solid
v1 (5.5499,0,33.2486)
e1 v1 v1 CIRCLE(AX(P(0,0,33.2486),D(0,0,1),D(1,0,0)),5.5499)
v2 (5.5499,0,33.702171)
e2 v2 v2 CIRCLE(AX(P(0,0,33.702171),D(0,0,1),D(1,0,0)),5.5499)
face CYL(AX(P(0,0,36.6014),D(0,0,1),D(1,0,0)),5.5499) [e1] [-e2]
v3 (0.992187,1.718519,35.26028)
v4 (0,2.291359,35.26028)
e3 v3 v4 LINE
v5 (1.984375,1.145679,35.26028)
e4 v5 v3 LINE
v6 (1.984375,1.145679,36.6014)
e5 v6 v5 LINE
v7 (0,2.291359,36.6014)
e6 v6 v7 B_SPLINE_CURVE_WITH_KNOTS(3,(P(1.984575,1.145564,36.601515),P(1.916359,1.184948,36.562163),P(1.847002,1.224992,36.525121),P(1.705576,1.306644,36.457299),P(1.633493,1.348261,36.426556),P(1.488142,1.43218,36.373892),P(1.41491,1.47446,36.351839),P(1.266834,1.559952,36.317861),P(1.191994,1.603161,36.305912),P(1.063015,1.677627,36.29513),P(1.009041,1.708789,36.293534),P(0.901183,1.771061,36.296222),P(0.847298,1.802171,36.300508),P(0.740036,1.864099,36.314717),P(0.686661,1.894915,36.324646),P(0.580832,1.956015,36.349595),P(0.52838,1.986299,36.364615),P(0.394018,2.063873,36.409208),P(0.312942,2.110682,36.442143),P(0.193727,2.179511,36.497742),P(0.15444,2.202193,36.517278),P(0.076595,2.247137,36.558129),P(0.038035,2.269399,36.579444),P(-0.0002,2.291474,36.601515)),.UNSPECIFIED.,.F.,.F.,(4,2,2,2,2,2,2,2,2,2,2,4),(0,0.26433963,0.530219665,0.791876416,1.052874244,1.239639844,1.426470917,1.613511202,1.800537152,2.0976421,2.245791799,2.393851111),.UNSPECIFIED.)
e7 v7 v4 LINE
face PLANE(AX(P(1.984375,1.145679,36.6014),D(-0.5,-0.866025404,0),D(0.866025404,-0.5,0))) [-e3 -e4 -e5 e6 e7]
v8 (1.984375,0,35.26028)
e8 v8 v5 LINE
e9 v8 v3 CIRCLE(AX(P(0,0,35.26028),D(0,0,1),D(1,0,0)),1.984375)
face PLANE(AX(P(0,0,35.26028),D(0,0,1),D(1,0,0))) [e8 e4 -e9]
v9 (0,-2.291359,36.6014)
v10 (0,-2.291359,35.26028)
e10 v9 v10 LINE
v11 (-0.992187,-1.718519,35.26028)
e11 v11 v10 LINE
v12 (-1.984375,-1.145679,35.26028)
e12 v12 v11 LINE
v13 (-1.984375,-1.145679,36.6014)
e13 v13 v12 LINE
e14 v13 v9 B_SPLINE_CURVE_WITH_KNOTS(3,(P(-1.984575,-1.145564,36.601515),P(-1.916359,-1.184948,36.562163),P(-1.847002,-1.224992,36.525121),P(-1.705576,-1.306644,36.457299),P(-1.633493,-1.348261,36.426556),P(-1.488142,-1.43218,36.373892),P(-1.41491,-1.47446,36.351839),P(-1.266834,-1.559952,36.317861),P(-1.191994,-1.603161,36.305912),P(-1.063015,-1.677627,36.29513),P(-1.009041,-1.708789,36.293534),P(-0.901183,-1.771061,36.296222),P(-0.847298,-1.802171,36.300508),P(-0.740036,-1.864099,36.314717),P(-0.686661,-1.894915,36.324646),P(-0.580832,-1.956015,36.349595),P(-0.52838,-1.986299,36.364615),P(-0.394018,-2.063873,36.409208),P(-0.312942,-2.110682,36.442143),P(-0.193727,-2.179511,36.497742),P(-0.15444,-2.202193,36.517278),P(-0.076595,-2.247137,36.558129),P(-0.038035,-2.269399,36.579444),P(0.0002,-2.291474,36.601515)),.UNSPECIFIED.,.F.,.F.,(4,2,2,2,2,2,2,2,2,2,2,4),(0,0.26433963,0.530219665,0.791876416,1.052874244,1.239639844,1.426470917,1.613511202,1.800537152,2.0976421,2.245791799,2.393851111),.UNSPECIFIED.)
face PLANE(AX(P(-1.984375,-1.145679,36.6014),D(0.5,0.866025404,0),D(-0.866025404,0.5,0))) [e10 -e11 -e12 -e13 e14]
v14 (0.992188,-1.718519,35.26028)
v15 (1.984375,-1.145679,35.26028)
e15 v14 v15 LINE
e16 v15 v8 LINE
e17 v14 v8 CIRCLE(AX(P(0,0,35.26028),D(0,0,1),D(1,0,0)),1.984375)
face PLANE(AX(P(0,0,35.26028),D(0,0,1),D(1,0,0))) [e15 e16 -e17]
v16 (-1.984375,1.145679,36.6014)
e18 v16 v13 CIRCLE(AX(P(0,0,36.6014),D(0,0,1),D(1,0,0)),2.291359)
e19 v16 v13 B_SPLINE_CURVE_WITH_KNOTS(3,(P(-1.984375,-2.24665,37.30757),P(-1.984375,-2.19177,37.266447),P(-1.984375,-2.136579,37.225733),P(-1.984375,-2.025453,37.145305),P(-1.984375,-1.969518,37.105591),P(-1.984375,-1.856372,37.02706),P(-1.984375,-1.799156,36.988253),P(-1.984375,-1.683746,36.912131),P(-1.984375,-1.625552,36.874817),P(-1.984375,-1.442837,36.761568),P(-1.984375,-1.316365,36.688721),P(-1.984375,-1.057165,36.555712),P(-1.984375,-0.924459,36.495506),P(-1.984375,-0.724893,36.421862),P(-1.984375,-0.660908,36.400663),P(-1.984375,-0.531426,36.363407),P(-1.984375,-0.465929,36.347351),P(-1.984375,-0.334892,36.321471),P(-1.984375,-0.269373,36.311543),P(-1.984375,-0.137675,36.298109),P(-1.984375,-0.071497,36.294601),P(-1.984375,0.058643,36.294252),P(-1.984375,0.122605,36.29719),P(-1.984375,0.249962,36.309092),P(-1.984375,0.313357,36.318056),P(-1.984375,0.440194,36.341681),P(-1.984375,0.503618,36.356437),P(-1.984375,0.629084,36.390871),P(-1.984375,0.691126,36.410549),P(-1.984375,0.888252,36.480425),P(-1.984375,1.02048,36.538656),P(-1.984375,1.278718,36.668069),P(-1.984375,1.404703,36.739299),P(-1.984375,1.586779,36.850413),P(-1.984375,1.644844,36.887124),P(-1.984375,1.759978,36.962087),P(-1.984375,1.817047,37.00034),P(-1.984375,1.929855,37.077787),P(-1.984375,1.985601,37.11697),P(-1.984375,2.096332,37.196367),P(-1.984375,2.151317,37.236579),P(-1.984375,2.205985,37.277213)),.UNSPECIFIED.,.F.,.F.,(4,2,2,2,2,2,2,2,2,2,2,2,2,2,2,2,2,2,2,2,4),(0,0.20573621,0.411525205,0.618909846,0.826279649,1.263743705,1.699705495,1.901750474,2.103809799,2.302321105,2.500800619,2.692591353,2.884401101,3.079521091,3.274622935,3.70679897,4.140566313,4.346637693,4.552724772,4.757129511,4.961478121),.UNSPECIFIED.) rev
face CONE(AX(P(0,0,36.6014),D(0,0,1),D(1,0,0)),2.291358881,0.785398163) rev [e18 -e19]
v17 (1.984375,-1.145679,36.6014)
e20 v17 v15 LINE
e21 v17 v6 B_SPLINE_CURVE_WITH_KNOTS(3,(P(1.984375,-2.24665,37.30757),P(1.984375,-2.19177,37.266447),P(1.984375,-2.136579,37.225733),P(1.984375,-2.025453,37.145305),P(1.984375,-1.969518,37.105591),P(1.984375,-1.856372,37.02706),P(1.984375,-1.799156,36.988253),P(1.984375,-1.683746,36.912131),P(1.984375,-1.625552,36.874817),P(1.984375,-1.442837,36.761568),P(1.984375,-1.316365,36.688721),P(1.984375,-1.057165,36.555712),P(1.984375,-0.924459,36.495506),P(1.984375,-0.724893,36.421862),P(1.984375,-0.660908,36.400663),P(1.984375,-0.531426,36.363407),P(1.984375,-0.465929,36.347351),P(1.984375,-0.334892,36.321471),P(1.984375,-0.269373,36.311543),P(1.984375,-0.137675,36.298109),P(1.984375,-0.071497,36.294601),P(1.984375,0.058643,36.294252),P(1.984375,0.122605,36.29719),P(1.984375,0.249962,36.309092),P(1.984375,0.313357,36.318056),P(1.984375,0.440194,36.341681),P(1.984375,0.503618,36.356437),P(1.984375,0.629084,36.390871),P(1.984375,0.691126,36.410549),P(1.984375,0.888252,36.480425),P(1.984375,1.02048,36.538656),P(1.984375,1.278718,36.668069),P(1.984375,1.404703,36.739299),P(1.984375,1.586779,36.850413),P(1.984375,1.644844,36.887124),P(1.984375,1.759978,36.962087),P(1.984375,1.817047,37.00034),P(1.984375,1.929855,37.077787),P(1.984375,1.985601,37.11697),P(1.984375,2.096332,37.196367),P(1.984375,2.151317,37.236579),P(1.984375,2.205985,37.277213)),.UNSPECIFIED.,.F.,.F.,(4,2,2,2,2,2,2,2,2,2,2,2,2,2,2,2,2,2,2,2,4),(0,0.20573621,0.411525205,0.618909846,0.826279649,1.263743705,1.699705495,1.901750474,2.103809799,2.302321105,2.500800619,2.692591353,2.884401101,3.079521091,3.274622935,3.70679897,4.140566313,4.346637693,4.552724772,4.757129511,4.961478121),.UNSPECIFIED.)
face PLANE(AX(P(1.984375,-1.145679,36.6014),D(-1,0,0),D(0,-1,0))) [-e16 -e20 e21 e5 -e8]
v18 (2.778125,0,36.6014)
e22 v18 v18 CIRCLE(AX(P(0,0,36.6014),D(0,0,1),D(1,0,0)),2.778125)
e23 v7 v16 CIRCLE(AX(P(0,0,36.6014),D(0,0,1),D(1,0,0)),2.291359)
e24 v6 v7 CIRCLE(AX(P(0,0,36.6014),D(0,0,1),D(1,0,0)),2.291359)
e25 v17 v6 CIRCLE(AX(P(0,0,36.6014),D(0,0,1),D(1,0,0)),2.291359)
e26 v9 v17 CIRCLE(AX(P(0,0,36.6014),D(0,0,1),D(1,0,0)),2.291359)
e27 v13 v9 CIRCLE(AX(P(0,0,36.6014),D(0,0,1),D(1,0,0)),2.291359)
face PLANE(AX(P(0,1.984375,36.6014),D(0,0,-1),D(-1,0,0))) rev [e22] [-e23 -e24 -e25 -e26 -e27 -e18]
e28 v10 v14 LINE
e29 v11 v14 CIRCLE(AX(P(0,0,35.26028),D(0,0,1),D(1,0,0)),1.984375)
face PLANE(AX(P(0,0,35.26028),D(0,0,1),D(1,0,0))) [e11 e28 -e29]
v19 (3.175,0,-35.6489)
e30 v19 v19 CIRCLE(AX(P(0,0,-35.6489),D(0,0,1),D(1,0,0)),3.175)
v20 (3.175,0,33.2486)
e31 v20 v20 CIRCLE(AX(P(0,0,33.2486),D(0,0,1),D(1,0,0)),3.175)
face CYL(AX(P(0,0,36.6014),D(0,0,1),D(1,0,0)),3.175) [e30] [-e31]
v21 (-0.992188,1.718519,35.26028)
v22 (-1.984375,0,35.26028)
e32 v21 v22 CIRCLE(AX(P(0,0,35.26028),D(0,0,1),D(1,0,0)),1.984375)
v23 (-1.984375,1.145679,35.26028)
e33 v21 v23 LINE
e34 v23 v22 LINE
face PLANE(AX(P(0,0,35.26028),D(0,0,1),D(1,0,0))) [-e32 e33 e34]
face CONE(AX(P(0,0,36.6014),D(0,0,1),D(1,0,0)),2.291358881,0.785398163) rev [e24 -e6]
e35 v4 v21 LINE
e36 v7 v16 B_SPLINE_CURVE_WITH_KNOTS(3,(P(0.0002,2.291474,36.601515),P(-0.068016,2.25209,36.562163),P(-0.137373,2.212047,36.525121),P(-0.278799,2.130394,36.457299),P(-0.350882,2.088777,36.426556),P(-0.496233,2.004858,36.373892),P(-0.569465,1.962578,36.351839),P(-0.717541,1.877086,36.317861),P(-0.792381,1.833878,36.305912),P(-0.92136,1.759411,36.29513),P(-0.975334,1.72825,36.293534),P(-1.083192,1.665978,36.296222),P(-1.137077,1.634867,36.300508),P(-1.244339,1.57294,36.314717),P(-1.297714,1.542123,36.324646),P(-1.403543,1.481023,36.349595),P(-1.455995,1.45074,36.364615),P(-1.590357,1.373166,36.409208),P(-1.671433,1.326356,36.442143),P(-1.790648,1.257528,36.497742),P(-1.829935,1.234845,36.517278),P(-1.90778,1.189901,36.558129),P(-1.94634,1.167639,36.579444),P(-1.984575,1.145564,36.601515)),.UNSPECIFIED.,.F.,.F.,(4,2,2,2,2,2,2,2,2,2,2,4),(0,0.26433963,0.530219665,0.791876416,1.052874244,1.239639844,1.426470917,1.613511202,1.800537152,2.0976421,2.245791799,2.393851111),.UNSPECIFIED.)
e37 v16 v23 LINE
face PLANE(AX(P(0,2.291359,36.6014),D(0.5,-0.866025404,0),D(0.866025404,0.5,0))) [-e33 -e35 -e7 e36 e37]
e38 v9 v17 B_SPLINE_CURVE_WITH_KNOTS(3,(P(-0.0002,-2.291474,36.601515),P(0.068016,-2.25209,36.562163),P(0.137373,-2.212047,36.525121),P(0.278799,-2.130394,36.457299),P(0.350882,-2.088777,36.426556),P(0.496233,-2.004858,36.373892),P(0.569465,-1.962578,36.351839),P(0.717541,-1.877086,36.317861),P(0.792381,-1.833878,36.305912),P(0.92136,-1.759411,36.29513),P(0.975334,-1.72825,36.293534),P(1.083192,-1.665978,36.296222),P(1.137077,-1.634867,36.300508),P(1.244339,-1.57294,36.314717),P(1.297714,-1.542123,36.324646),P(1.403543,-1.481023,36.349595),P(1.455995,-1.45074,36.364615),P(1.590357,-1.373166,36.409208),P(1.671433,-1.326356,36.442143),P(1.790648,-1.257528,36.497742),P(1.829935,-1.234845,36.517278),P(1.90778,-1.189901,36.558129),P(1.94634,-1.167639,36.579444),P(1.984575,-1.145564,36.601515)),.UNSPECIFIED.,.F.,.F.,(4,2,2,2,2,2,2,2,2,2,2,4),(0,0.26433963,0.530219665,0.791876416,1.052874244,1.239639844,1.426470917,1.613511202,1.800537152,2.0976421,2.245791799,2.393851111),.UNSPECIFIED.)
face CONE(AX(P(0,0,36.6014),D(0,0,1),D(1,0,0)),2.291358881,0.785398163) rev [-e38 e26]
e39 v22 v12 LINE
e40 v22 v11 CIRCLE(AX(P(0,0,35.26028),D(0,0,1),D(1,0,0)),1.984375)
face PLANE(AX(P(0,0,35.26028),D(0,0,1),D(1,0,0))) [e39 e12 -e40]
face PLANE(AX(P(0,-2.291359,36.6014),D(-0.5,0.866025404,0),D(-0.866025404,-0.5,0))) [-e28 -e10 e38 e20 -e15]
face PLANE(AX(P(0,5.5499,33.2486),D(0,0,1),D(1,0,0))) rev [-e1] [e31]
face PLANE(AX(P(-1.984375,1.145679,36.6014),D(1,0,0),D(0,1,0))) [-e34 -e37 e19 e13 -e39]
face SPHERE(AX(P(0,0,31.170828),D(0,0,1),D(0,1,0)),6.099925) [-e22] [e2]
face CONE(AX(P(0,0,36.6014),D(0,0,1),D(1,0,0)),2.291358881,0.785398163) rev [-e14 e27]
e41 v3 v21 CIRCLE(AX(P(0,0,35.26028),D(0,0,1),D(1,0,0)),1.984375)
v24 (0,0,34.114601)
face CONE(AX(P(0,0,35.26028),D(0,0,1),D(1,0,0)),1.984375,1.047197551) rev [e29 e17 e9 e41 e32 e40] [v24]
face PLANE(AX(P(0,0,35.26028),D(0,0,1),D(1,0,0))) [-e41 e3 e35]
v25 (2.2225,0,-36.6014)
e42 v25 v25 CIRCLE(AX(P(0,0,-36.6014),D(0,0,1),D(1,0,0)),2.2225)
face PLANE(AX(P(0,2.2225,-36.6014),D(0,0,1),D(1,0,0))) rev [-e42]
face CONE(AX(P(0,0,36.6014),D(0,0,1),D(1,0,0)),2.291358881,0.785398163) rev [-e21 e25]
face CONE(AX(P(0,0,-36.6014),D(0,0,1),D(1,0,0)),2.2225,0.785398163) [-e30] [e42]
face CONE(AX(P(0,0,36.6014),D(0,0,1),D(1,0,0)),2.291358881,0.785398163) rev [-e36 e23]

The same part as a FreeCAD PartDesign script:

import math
import FreeCAD as App
import Part
import Sketcher
from FreeCAD import Vector
Q = App.Units.Quantity


def faces_at(feature, points):
    """Names of the faces that lie closest to the given points."""
    faces = feature.Shape.Faces
    near = lambda p: min(range(len(faces)), key=lambda i: faces[i].distToShape(Part.Vertex(*p))[0])
    return sorted({f"Face{near(p) + 1}" for p in points})

doc = App.newDocument("Part")
body = doc.addObject("PartDesign::Body", "Body")

sketch1 = body.newObject("Sketcher::SketchObject", "Sketch")
sketch1.AttachmentSupport = (doc.getObject("YZ_Plane"), [""])
sketch1.MapMode = "FlatFace"
sketch1.addGeometry(Part.LineSegment(Vector(2.78, 36.6, 0), Vector(1.98, 36.6, 0)), False)
sketch1.addGeometry(Part.LineSegment(Vector(1.98, 36.6, 0), Vector(1.98, 35.26, 0)), False)
sketch1.addGeometry(Part.LineSegment(Vector(1.98, 35.26, 0), Vector(0, 34.11, 0)), False)
sketch1.addGeometry(Part.LineSegment(Vector(0, 34.11, 0), Vector(0, -36.6, 0)), False)
sketch1.addGeometry(Part.LineSegment(Vector(0, -36.6, 0), Vector(2.22, -36.6, 0)), False)
sketch1.addGeometry(Part.LineSegment(Vector(2.22, -36.6, 0), Vector(3.17, -35.65, 0)), False)
sketch1.addGeometry(Part.LineSegment(Vector(3.17, -35.65, 0), Vector(3.17, 33.25, 0)), False)
sketch1.addGeometry(Part.LineSegment(Vector(3.17, 33.25, 0), Vector(5.55, 33.25, 0)), False)
sketch1.addGeometry(Part.LineSegment(Vector(5.55, 33.25, 0), Vector(5.55, 33.7, 0)), False)
sketch1.addGeometry(Part.ArcOfCircle(Part.Circle(Vector(0, 31.17, 0), Vector(0, 0, 1), 6.1), math.radians(25), math.radians(63)), False)
sketch1.addConstraint(Sketcher.Constraint("Coincident", 0, 2, 1, 1))
sketch1.addConstraint(Sketcher.Constraint("Coincident", 1, 2, 2, 1))
sketch1.addConstraint(Sketcher.Constraint("Coincident", 2, 2, 3, 1))
sketch1.addConstraint(Sketcher.Constraint("Coincident", 3, 2, 4, 1))
sketch1.addConstraint(Sketcher.Constraint("Coincident", 4, 2, 5, 1))
sketch1.addConstraint(Sketcher.Constraint("Coincident", 5, 2, 6, 1))
sketch1.addConstraint(Sketcher.Constraint("Coincident", 6, 2, 7, 1))
sketch1.addConstraint(Sketcher.Constraint("Coincident", 7, 2, 8, 1))
sketch1.addConstraint(Sketcher.Constraint("Coincident", 8, 2, 9, 1))
sketch1.addConstraint(Sketcher.Constraint("Coincident", 9, 2, 0, 1))
sketch1.addConstraint(Sketcher.Constraint("Horizontal", 0))
sketch1.addConstraint(Sketcher.Constraint("Vertical", 1))
sketch1.addConstraint(Sketcher.Constraint("Vertical", 3))
sketch1.addConstraint(Sketcher.Constraint("Horizontal", 4))
sketch1.addConstraint(Sketcher.Constraint("Vertical", 6))
sketch1.addConstraint(Sketcher.Constraint("Horizontal", 7))
sketch1.addConstraint(Sketcher.Constraint("Vertical", 8))
sketch1.addConstraint(Sketcher.Constraint("PointOnObject", 9, 3, -2))
sketch1.addConstraint(Sketcher.Constraint("PointOnObject", 2, 2, -2))
sketch1.addConstraint(Sketcher.Constraint("Angle", 2, Q("-150 deg")))
sketch1.addConstraint(Sketcher.Constraint("Angle", 5, Q("45 deg")))
sketch1.addConstraint(Sketcher.Constraint("DistanceX", 0, 2, 0, 1, Q("0.03125 in")))
sketch1.addConstraint(Sketcher.Constraint("DistanceX", 4, 1, 4, 2, Q("0.0875 in")))
sketch1.addConstraint(Sketcher.Constraint("DistanceX", 7, 1, 7, 2, Q("0.0935 in")))
sketch1.addConstraint(Sketcher.Constraint("DistanceY", 1, 2, 1, 1, Q("0.0528 in")))
sketch1.addConstraint(Sketcher.Constraint("DistanceY", 6, 1, 6, 2, Q("2.7125 in")))
sketch1.addConstraint(Sketcher.Constraint("DistanceX", -1, 1, 0, 2, Q("0.078125 in")))
sketch1.addConstraint(Sketcher.Constraint("DistanceY", -1, 1, 0, 2, Q("1.441 in")))
sketch1.addConstraint(Sketcher.Constraint("DistanceY", 3, 2, -1, 1, Q("1.441 in")))
sketch1.addConstraint(Sketcher.Constraint("DistanceX", -1, 1, 5, 2, Q("0.125 in")))
sketch1.addConstraint(Sketcher.Constraint("Radius", 9, Q("6.099925 mm")))
revolution = body.newObject("PartDesign::Revolution", "Revolution")
revolution.Profile = sketch1
revolution.ReferenceAxis = (sketch1, ["V_Axis"])
revolution.Angle = 360

sketch2 = body.newObject("Sketcher::SketchObject", "Sketch001")
sketch2.AttachmentSupport = (doc.getObject("XY_Plane"), [""])
sketch2.MapMode = "FlatFace"
sketch2.AttachmentOffset = App.Placement(Vector(0, 0, 1.3882 * 25.4), App.Rotation())
sketch2.addGeometry(Part.LineSegment(Vector(0, 2.3, 0), Vector(-2, 1.1, 0)), False)
sketch2.addGeometry(Part.LineSegment(Vector(-2, 1.1, 0), Vector(-2, -1.1, 0)), False)
sketch2.addGeometry(Part.LineSegment(Vector(-2, -1.1, 0), Vector(0, -2.3, 0)), False)
sketch2.addGeometry(Part.LineSegment(Vector(0, -2.3, 0), Vector(2, -1.1, 0)), False)
sketch2.addGeometry(Part.LineSegment(Vector(2, -1.1, 0), Vector(2, 1.1, 0)), False)
sketch2.addGeometry(Part.LineSegment(Vector(2, 1.1, 0), Vector(0, 2.3, 0)), False)
sketch2.addConstraint(Sketcher.Constraint("Coincident", 0, 2, 1, 1))
sketch2.addConstraint(Sketcher.Constraint("Coincident", 1, 2, 2, 1))
sketch2.addConstraint(Sketcher.Constraint("Coincident", 2, 2, 3, 1))
sketch2.addConstraint(Sketcher.Constraint("Coincident", 3, 2, 4, 1))
sketch2.addConstraint(Sketcher.Constraint("Coincident", 4, 2, 5, 1))
sketch2.addConstraint(Sketcher.Constraint("Coincident", 5, 2, 0, 1))
sketch2.addConstraint(Sketcher.Constraint("Vertical", 1))
sketch2.addConstraint(Sketcher.Constraint("Vertical", 4))
sketch2.addConstraint(Sketcher.Constraint("Symmetric", 0, 2, 3, 2, -1, 1))
sketch2.addConstraint(Sketcher.Constraint("Symmetric", 2, 2, 5, 2, -1, 1))
sketch2.addConstraint(Sketcher.Constraint("PointOnObject", 2, 2, -2))
sketch2.addConstraint(Sketcher.Constraint("Parallel", 2, 5))
sketch2.addConstraint(Sketcher.Constraint("Horizontal", 1, 2, 3, 2))
sketch2.addConstraint(Sketcher.Constraint("Angle", 0, Q("-150 deg")))
sketch2.addConstraint(Sketcher.Constraint("DistanceX", 0, 2, -1, 1, Q("0.078125 in")))
sketch2.addConstraint(Sketcher.Constraint("DistanceY", 1, 2, 1, 1, Q("2.291359 mm")))
pocket1 = body.newObject("PartDesign::Pocket", "Pocket")
pocket1.Profile = sketch2
pocket1.Type = "ThroughAll"
pocket1.Reversed = True
body2 = doc.addObject("PartDesign::Body", "Body001")

sketch3 = body2.newObject("Sketcher::SketchObject", "Sketch002")
sketch3.AttachmentSupport = (doc.getObject("XY_Plane001"), [""])
sketch3.MapMode = "FlatFace"
sketch3.AttachmentOffset = App.Placement(Vector(0, 0, 1.441 * 25.4), App.Rotation())
sketch3.addGeometry(Part.Circle(Vector(0, 0, 0), Vector(0, 0, 1), 2.3), False)
sketch3.addConstraint(Sketcher.Constraint("Coincident", 0, 3, -1, 1))
sketch3.addConstraint(Sketcher.Constraint("Diameter", 0, Q("4.582718 mm")))
pad1 = body2.newObject("PartDesign::Pad", "Pad")
pad1.Profile = sketch3
pad1.Length = Q("0.0528 in")
pad1.Reversed = True
doc.recompute()

datumplane = body2.newObject("PartDesign::Plane", "DatumPlane")
datumplane.AttachmentSupport = (doc.getObject("XY_Plane001"), [""])
datumplane.MapMode = "FlatFace"
datumplane.AttachmentOffset = App.Placement(Vector(0, 0, 1.441 * 25.4), App.Rotation())
draft = body2.newObject("PartDesign::Draft", "Draft")
draft.Base = (pad1, faces_at(pad1, [(-2.291, 0, 35.931)]))
draft.NeutralPlane = (datumplane, [""])
draft.Angle = 45
draft.Reversed = True
doc.recompute()

boolean = body.newObject("PartDesign::Boolean", "Boolean")
boolean.Type = "Cut"
boolean.addObjects([body2])

doc.recompute()
